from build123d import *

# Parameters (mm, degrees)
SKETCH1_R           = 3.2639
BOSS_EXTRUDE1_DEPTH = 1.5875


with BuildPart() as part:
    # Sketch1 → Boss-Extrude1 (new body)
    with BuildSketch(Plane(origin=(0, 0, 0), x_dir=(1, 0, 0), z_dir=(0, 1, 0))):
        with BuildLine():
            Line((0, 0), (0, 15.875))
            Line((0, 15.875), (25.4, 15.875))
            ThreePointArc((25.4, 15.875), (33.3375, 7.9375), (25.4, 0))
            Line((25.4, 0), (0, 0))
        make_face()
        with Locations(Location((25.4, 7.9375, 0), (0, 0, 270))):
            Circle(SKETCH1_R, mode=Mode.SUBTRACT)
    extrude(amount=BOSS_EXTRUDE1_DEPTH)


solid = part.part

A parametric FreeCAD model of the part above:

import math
import FreeCAD as App
import Part
import Sketcher
Q = App.Units.Quantity

doc = App.newDocument("Part")
body = doc.addObject("PartDesign::Body", "Body")

# Sketch on XZ plane
sketch1 = doc.addObject("Sketcher::SketchObject", "Sketch")
body.addObject(sketch1)
sketch1.AttachmentSupport = (doc.XZ_Plane, [""])
sketch1.MapMode = "FlatFace"
sketch1.addGeometry([
    Part.LineSegment(App.Vector(0, -15.9, 0), App.Vector(0, 0, 0)),  # 0
    Part.LineSegment(App.Vector(0, 0, 0), App.Vector(25.4, 0, 0)),  # 1
    Part.ArcOfCircle(Part.Circle(App.Vector(25.4, -7.9, 0), App.Vector(0, 0, 1), 7.9), math.radians(-90), math.radians(90)),  # 2
    Part.LineSegment(App.Vector(25.4, -15.9, 0), App.Vector(0, -15.9, 0)),  # 3
    Part.Circle(App.Vector(25.4, -7.9, 0), App.Vector(0, 0, 1), 3.3),  # 4
], False)
sketch1.addConstraint([
    Sketcher.Constraint("Coincident", 0, 2, 1, 1),
    Sketcher.Constraint("Tangent", 1, 2, 2, 2),
    Sketcher.Constraint("Tangent", 2, 1, 3, 1),
    Sketcher.Constraint("Coincident", 3, 2, 0, 1),
    Sketcher.Constraint("Vertical", 0),
    Sketcher.Constraint("Horizontal", 1),
    Sketcher.Constraint("Horizontal", 3),
    Sketcher.Constraint("Coincident", 0, 2, -1, 1),
    Sketcher.Constraint("Coincident", 4, 3, 2, 3),
    Sketcher.Constraint("DistanceX", 1, 1, 1, 2, Q("1 in")),
    Sketcher.Constraint("Diameter", 4, Q("0.257 in")),
    Sketcher.Constraint("Radius", 2, Q("0.3125 in")),
])
pad1 = doc.addObject("PartDesign::Pad", "Pad")
body.addObject(pad1)
pad1.Profile = sketch1
pad1.Length = Q("0.0625 in")
pad1.Reversed = True

doc.recompute()
